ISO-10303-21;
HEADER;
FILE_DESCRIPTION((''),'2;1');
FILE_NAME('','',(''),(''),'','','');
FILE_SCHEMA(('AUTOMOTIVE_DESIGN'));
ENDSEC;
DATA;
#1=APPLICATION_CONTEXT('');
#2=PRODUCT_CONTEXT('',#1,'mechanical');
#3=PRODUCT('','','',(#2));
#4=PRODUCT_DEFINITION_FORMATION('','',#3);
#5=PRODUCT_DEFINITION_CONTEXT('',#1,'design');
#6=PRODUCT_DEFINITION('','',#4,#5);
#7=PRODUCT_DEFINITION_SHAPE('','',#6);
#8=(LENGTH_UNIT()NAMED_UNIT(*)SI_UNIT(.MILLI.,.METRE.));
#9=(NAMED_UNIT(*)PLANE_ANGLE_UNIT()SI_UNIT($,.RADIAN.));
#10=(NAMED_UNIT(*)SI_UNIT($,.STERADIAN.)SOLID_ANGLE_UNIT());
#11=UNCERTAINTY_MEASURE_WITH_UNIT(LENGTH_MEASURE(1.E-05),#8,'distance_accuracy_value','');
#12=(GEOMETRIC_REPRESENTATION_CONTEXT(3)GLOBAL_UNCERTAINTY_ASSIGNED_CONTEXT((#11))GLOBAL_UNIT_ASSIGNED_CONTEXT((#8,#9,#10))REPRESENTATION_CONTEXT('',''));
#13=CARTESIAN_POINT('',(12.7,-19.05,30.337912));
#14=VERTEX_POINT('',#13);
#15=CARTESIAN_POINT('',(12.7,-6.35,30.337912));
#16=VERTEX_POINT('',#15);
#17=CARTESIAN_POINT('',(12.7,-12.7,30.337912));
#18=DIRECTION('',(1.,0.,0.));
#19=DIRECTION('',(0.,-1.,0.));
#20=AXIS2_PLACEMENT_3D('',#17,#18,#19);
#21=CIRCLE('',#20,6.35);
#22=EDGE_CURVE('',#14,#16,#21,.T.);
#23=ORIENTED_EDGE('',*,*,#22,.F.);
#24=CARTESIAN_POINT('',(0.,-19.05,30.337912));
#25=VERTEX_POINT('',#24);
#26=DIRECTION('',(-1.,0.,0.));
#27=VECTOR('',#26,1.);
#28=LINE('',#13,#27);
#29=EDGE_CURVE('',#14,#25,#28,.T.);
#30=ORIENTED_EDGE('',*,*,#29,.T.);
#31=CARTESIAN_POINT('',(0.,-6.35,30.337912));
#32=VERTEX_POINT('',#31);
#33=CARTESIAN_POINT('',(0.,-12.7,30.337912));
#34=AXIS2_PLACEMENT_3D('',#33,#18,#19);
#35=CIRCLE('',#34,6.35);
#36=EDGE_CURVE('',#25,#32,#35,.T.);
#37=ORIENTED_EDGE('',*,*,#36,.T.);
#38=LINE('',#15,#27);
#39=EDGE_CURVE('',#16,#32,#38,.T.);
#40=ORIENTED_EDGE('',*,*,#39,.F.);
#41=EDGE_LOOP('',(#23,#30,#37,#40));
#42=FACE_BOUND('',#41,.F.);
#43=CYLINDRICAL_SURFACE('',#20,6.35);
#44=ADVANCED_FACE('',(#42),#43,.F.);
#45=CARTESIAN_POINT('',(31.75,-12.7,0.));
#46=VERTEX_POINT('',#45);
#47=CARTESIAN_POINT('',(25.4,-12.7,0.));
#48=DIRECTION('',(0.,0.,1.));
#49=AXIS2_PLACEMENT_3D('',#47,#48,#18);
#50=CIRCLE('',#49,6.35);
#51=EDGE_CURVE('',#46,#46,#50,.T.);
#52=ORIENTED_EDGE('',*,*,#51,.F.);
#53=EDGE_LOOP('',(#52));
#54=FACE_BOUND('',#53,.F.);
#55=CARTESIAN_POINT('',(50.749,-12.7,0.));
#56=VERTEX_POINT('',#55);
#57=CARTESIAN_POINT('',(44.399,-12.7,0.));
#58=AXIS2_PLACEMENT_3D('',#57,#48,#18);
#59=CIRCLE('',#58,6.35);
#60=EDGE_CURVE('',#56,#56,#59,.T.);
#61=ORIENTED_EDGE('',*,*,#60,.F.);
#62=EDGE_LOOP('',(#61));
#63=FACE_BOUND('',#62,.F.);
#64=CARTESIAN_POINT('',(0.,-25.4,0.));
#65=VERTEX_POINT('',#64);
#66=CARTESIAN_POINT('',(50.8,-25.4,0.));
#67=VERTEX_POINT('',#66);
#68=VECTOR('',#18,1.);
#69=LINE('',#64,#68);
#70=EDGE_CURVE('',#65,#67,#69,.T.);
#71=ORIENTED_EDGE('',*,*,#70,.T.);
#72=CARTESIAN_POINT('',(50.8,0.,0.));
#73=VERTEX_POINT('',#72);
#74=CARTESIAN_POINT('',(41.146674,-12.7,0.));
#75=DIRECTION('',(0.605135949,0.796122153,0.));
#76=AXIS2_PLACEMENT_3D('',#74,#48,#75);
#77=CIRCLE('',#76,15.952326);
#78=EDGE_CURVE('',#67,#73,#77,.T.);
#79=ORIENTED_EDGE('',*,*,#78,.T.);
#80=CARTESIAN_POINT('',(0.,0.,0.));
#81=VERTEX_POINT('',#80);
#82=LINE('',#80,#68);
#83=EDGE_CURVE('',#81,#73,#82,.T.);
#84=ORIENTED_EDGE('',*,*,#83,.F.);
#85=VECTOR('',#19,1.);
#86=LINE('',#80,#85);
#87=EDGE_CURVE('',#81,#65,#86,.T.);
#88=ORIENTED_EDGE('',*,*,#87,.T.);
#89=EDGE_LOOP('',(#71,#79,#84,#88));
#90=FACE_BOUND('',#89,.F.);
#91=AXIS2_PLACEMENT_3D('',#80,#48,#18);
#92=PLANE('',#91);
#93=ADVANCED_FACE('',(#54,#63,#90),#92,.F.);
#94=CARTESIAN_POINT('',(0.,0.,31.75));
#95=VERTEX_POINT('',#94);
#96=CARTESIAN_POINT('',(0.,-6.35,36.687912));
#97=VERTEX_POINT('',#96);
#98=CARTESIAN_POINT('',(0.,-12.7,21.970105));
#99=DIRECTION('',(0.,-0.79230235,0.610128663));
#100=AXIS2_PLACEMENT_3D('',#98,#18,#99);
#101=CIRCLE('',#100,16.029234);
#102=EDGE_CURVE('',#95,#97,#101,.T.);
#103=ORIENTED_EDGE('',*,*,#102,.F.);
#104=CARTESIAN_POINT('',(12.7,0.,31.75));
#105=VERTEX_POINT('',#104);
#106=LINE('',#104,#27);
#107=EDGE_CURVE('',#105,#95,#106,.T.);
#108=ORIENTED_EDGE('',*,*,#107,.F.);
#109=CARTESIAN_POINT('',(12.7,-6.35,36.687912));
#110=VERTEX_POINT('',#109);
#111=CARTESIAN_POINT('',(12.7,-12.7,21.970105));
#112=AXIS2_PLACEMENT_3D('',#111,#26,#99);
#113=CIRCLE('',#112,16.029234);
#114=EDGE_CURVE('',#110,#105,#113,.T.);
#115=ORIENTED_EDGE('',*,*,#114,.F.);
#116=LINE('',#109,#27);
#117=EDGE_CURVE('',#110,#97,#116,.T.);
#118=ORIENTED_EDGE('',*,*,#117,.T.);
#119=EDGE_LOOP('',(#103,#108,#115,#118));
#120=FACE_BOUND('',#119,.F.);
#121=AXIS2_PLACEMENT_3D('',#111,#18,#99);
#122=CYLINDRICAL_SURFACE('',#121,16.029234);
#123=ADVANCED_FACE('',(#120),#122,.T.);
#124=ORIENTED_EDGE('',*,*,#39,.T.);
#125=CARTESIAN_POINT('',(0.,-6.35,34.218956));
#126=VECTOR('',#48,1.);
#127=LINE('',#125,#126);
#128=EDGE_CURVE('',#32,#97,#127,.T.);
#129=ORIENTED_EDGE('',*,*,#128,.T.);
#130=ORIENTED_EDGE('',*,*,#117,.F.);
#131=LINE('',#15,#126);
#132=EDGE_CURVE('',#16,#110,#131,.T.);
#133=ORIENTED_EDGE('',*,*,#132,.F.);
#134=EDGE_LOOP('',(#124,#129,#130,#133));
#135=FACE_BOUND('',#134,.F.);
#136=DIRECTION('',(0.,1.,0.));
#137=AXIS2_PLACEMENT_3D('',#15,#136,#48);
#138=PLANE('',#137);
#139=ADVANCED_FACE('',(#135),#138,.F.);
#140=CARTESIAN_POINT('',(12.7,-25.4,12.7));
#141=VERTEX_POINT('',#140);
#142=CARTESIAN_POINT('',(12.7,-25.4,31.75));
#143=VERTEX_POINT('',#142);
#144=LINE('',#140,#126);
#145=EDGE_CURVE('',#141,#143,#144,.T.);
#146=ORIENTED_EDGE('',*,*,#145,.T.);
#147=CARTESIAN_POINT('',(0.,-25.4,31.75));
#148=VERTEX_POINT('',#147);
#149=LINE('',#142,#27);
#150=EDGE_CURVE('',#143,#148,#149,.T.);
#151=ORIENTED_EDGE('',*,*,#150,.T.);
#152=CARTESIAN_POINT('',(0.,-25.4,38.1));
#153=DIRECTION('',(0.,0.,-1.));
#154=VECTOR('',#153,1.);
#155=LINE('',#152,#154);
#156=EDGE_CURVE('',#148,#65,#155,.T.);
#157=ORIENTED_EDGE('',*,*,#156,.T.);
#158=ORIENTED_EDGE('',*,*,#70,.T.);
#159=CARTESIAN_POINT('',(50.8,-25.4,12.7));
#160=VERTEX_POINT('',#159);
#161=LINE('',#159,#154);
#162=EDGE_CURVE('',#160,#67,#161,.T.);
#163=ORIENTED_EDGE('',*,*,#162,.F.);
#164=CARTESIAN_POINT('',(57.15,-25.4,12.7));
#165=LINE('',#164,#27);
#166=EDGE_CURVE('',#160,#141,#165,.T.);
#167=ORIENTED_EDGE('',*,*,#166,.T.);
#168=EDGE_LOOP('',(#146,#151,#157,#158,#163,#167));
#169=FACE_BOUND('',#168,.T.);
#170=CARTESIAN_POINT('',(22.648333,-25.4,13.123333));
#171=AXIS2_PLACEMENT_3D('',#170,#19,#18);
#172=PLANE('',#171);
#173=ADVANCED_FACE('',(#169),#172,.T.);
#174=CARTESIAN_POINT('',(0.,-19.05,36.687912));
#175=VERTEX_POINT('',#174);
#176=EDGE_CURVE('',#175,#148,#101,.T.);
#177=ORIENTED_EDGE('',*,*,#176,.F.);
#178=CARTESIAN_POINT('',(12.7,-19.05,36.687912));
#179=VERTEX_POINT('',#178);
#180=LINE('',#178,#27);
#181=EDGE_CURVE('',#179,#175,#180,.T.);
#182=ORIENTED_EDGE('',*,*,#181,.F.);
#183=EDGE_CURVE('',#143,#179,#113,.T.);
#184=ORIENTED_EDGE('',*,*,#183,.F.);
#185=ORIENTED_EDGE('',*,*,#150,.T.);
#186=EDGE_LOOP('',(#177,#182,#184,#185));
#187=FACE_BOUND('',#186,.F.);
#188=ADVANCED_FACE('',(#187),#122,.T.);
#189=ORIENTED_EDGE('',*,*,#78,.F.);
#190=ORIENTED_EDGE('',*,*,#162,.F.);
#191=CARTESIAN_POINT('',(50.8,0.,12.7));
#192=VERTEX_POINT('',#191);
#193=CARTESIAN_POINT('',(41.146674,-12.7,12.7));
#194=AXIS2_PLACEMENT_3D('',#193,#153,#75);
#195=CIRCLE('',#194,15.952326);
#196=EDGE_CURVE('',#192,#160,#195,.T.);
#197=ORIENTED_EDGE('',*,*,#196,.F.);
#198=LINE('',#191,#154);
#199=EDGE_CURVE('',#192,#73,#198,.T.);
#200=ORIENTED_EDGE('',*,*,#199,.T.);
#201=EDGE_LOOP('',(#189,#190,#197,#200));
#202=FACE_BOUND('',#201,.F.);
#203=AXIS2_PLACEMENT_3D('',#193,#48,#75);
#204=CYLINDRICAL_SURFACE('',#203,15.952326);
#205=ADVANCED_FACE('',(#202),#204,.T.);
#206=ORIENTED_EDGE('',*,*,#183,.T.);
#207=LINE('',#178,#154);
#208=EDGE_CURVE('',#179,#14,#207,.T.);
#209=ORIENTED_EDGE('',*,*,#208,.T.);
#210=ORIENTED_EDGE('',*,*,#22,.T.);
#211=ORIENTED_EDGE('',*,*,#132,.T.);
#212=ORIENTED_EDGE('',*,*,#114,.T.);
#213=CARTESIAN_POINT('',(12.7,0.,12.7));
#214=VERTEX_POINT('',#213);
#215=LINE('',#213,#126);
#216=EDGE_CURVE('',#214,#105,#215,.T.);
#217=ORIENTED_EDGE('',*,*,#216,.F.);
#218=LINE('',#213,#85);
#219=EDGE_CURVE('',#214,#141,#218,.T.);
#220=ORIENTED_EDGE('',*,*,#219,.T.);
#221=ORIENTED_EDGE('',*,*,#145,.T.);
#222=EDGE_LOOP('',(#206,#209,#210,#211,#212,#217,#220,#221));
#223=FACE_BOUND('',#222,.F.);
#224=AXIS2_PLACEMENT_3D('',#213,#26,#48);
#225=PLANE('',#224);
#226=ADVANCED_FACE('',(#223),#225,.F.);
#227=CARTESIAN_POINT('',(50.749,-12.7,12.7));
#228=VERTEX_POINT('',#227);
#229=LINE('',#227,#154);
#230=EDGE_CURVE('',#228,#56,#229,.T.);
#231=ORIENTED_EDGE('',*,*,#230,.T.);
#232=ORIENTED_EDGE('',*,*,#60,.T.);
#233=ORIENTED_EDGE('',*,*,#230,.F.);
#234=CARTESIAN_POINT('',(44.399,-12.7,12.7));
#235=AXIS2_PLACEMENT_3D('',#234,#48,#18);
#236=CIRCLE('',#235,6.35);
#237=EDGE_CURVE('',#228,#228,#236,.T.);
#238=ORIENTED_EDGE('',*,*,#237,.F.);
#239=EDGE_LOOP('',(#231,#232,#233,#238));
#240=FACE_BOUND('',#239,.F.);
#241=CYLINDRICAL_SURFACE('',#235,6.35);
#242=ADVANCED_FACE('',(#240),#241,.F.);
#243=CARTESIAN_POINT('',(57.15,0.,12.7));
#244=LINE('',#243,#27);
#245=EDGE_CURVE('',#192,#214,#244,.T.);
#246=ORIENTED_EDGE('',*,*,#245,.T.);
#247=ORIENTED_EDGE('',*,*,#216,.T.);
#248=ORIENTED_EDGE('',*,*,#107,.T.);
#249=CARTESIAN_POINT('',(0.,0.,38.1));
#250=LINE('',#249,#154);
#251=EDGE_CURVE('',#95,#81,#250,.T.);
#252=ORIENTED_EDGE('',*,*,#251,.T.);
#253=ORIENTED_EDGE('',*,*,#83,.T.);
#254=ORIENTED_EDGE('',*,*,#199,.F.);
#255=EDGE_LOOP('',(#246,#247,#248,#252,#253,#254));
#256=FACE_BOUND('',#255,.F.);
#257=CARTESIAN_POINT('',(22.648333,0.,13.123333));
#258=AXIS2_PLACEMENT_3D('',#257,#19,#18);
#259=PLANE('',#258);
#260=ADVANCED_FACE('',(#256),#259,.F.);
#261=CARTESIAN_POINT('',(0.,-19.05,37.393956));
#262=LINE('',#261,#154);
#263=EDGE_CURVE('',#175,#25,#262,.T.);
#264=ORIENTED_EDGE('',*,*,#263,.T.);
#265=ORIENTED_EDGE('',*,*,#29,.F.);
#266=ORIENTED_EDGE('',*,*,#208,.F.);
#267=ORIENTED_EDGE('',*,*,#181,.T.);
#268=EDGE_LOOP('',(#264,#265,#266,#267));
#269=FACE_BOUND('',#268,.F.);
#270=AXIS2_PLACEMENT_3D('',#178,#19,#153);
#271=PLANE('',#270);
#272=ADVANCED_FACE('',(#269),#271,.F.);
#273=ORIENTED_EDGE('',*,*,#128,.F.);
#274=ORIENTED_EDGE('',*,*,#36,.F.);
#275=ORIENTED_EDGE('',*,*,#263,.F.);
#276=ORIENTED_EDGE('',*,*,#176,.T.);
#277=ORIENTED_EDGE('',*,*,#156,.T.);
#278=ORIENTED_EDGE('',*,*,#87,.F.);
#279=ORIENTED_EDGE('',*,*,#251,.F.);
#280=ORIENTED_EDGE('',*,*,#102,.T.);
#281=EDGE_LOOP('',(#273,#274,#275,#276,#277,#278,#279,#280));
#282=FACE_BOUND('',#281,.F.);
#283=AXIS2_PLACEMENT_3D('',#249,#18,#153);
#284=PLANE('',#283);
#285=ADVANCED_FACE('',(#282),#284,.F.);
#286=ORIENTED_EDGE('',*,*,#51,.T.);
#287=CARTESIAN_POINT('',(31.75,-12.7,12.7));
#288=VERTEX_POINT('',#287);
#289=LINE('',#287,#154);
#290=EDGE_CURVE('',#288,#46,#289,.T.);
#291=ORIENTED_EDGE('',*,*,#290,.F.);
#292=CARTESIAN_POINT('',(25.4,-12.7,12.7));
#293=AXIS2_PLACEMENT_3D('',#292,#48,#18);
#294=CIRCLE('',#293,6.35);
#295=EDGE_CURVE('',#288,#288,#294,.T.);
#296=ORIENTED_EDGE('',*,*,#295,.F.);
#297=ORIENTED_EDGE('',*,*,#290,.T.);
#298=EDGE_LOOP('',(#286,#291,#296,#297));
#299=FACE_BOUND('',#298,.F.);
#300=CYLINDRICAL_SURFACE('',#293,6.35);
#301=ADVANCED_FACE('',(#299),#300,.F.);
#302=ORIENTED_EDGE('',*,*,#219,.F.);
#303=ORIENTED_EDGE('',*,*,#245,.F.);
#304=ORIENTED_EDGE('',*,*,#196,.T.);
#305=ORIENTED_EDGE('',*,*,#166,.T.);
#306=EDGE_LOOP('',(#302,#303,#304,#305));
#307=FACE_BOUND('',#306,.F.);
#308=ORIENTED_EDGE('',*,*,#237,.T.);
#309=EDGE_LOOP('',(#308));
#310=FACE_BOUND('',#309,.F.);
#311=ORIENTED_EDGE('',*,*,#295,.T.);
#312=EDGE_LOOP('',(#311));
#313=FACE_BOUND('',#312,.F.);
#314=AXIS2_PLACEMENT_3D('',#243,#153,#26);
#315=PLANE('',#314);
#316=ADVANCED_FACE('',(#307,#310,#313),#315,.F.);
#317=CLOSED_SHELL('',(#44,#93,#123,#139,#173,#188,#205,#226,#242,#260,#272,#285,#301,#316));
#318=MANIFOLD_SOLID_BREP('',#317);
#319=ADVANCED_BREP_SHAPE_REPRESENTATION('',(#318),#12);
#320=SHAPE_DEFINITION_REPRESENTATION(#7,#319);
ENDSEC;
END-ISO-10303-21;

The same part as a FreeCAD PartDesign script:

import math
import FreeCAD as App
import Part
import Sketcher
Q = App.Units.Quantity


def add_polygon(sketch, points):
    """Adds a closed chain of lines whose ends are joined by coincident constraints."""
    first, n = sketch.GeometryCount, len(points)
    for a, b in zip(points, points[1:] + points[:1]):
        sketch.addGeometry(Part.LineSegment(App.Vector(*a, 0), App.Vector(*b, 0)), False)
    for i in range(n):
        sketch.addConstraint(Sketcher.Constraint("Coincident", first + i, 2, first + (i + 1) % n, 1))

doc = App.newDocument("Part")
body = doc.addObject("PartDesign::Body", "Body")

# Sketch on XZ plane
sketch1 = body.newObject("Sketcher::SketchObject", "Sketch")
sketch1.AttachmentSupport = (doc.getObject("XZ_Plane"), [""])
sketch1.MapMode = "FlatFace"
add_polygon(sketch1, [(0, 38), (0, 0), (57, 0), (57, 13), (13, 13), (13, 38)])  # lines 0-5
sketch1.addConstraint([
    Sketcher.Constraint("Vertical", 0),
    Sketcher.Constraint("Horizontal", 1),
    Sketcher.Constraint("Vertical", 2),
    Sketcher.Constraint("Horizontal", 3),
    Sketcher.Constraint("Vertical", 4),
    Sketcher.Constraint("Horizontal", 5),
    Sketcher.Constraint("Coincident", 0, 2, -1, 1),
    Sketcher.Constraint("Equal", 5, 2),
    Sketcher.Constraint("DistanceY", 4, 1, 4, 2, Q("1 in")),
    Sketcher.Constraint("DistanceX", 5, 2, 5, 1, Q("0.5 in")),
    Sketcher.Constraint("DistanceX", 1, 1, 1, 2, Q("2.25 in")),
])
pad1 = body.newObject("PartDesign::Pad", "Pad")
pad1.Profile = sketch1
pad1.Length = Q("1 in")

# Sketch on YZ plane
sketch2 = body.newObject("Sketcher::SketchObject", "Sketch001")
sketch2.AttachmentSupport = (doc.getObject("YZ_Plane"), [""])
sketch2.MapMode = "FlatFace"
sketch2.AttachmentOffset = App.Placement(App.Vector(0, 0, 0.5 * 25.4), App.Rotation())
sketch2.addGeometry([
    Part.LineSegment(App.Vector(-25, 38, 0), App.Vector(-25, 32, 0)),
    Part.ArcOfCircle(Part.Circle(App.Vector(-13, 22, 0), App.Vector(0, 0, 1), 16), math.radians(38), math.radians(142)),
    Part.LineSegment(App.Vector(0, 32, 0), App.Vector(0, 38, 0)),
    Part.LineSegment(App.Vector(0, 38, 0), App.Vector(-25, 38, 0)),
], False)
sketch2.addConstraint([
    Sketcher.Constraint("Coincident", 0, 2, 1, 2),
    Sketcher.Constraint("Coincident", 1, 1, 2, 1),
    Sketcher.Constraint("Coincident", 2, 2, 3, 1),
    Sketcher.Constraint("Coincident", 3, 2, 0, 1),
    Sketcher.Constraint("Vertical", 0),
    Sketcher.Constraint("Vertical", 2),
    Sketcher.Constraint("Horizontal", 3),
    Sketcher.Constraint("PointOnObject", 1, 1, -2),
    Sketcher.Constraint("Horizontal", 0, 2, 1, 1),
    Sketcher.Constraint("DistanceX", 3, 2, 3, 1, Q("1 in")),
    Sketcher.Constraint("DistanceY", 0, 2, 0, 1, Q("0.25 in")),
    Sketcher.Constraint("DistanceY", -1, 1, 2, 2, Q("1.5 in")),
    Sketcher.Constraint("Radius", 1, 16.029234),
])
pocket1 = body.newObject("PartDesign::Pocket", "Pocket")
pocket1.Profile = sketch2
pocket1.Length = Q("1 in")

# Sketch on YZ plane
sketch3 = body.newObject("Sketcher::SketchObject", "Sketch002")
sketch3.AttachmentSupport = (doc.getObject("YZ_Plane"), [""])
sketch3.MapMode = "FlatFace"
sketch3.AttachmentOffset = App.Placement(App.Vector(0, 0, 0.5 * 25.4), App.Rotation())
sketch3.addGeometry([
    Part.ArcOfCircle(Part.Circle(App.Vector(-13, 22, 0), App.Vector(0, 0, 1), 16), math.radians(67), math.radians(113)),
    Part.LineSegment(App.Vector(-19, 37, 0), App.Vector(-19, 30, 0)),
    Part.ArcOfCircle(Part.Circle(App.Vector(-13, 30, 0), App.Vector(0, 0, 1), 6), math.radians(180), math.radians(360)),
    Part.LineSegment(App.Vector(-6, 30, 0), App.Vector(-6, 37, 0)),
], False)
sketch3.addConstraint([
    Sketcher.Constraint("Coincident", 0, 2, 1, 1),
    Sketcher.Constraint("Tangent", 1, 2, 2, 1),
    Sketcher.Constraint("Tangent", 2, 2, 3, 1),
    Sketcher.Constraint("Coincident", 3, 2, 0, 1),
    Sketcher.Constraint("Vertical", 1),
    Sketcher.Constraint("Vertical", 3),
    Sketcher.Constraint("Horizontal", 0, 2, 3, 2),
    Sketcher.Constraint("Radius", 2, Q("0.25 in")),
    Sketcher.Constraint("DistanceY", 1, 2, 1, 1, Q("0.25 in")),
    Sketcher.Constraint("DistanceX", 0, 3, -1, 1, Q("0.5 in")),
    Sketcher.Constraint("Radius", 0, 16.029234),
    Sketcher.Constraint("DistanceY", -1, 1, 2, 3, 30.337912),
])
pocket2 = body.newObject("PartDesign::Pocket", "Pocket001")
pocket2.Profile = sketch3
pocket2.Length = Q("1 in")

# Sketch on XY plane
sketch4 = body.newObject("Sketcher::SketchObject", "Sketch003")
sketch4.AttachmentSupport = (doc.getObject("XY_Plane"), [""])
sketch4.MapMode = "FlatFace"
sketch4.AttachmentOffset = App.Placement(App.Vector(0, 0, 0.5 * 25.4), App.Rotation())
sketch4.addGeometry([
    Part.LineSegment(App.Vector(57, 0, 0), App.Vector(51, 0, 0)),
    Part.ArcOfCircle(Part.Circle(App.Vector(41, -13, 0), App.Vector(0, 0, 1), 16), math.radians(-53), math.radians(53)),
    Part.LineSegment(App.Vector(51, -25, 0), App.Vector(57, -25, 0)),
    Part.LineSegment(App.Vector(57, -25, 0), App.Vector(57, 0, 0)),
], False)
sketch4.addConstraint([
    Sketcher.Constraint("Coincident", 0, 2, 1, 2),
    Sketcher.Constraint("Coincident", 1, 1, 2, 1),
    Sketcher.Constraint("Coincident", 2, 2, 3, 1),
    Sketcher.Constraint("Coincident", 3, 2, 0, 1),
    Sketcher.Constraint("Horizontal", 0),
    Sketcher.Constraint("Horizontal", 2),
    Sketcher.Constraint("Vertical", 3),
    Sketcher.Constraint("PointOnObject", 0, 2, -1),
    Sketcher.Constraint("Vertical", 0, 2, 1, 1),
    Sketcher.Constraint("DistanceY", 3, 1, 3, 2, Q("1 in")),
    Sketcher.Constraint("DistanceX", -1, 1, 0, 2, Q("2 in")),
    Sketcher.Constraint("DistanceX", 0, 2, 0, 1, Q("0.25 in")),
    Sketcher.Constraint("Radius", 1, 15.952326),
])
pocket3 = body.newObject("PartDesign::Pocket", "Pocket002")
pocket3.Profile = sketch4
pocket3.Length = Q("1 in")

# Sketch on XY plane
sketch5 = body.newObject("Sketcher::SketchObject", "Sketch004")
sketch5.AttachmentSupport = (doc.getObject("XY_Plane"), [""])
sketch5.MapMode = "FlatFace"
sketch5.AttachmentOffset = App.Placement(App.Vector(0, 0, 0.5 * 25.4), App.Rotation())
sketch5.addGeometry([
    Part.Circle(App.Vector(25, -13, 0), App.Vector(0, 0, 1), 6),
    Part.Circle(App.Vector(44, -13, 0), App.Vector(0, 0, 1), 6),
], False)
sketch5.addConstraint([
    Sketcher.Constraint("Equal", 0, 1),
    Sketcher.Constraint("Horizontal", 0, 3, 1, 3),
    Sketcher.Constraint("Diameter", 0, Q("0.5 in")),
    Sketcher.Constraint("DistanceX", -1, 1, 0, 3, Q("1 in")),
    Sketcher.Constraint("DistanceY", 0, 3, -1, 1, Q("0.5 in")),
    Sketcher.Constraint("DistanceX", -1, 1, 1, 3, 44.399),
])
pocket4 = body.newObject("PartDesign::Pocket", "Pocket003")
pocket4.Profile = sketch5
pocket4.Length = Q("1 in")

doc.recompute()
